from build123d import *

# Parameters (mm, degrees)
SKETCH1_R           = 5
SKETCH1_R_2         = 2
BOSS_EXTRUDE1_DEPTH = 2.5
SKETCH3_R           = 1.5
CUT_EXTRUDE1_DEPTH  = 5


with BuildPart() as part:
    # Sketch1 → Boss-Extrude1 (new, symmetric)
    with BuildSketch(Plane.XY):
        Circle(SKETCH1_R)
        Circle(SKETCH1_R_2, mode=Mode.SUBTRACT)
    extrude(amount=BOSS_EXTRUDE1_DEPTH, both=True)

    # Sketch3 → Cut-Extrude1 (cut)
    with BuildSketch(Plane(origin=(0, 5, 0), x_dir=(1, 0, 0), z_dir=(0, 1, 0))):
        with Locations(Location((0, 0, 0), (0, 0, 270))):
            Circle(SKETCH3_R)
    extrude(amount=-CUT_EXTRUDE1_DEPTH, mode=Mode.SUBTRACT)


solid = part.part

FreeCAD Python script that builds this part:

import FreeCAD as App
import Part
import Sketcher

doc = App.newDocument("Part")
body = doc.addObject("PartDesign::Body", "Body")

# Sketch on XY plane
sketch1 = body.newObject("Sketcher::SketchObject", "Sketch")
sketch1.AttachmentSupport = (doc.getObject("XY_Plane"), [""])
sketch1.MapMode = "FlatFace"
sketch1.addGeometry([
    Part.Circle(App.Vector(0, 0, 0), App.Vector(0, 0, 1), 5),
    Part.Circle(App.Vector(0, 0, 0), App.Vector(0, 0, 1), 2),
], False)
sketch1.addConstraint([
    Sketcher.Constraint("Coincident", 0, 3, -1, 1),
    Sketcher.Constraint("Coincident", 1, 3, -1, 1),
    Sketcher.Constraint("Diameter", 0, 10.0),
    Sketcher.Constraint("Diameter", 1, 4.0),
])
pad1 = body.newObject("PartDesign::Pad", "Pad")
pad1.Profile = sketch1
pad1.Length = 5
pad1.Midplane = True

# Sketch on XZ plane
sketch2 = body.newObject("Sketcher::SketchObject", "Sketch001")
sketch2.AttachmentSupport = (doc.getObject("XZ_Plane"), [""])
sketch2.MapMode = "FlatFace"
sketch2.AttachmentOffset = App.Placement(App.Vector(0, 0, -5), App.Rotation())
sketch2.addGeometry(Part.Circle(App.Vector(0, 0, 0), App.Vector(0, 0, 1), 1.5), False)
sketch2.addConstraint([
    Sketcher.Constraint("Coincident", 0, 3, -1, 1),
    Sketcher.Constraint("Diameter", 0, 3.0),
])
pocket1 = body.newObject("PartDesign::Pocket", "Pocket")
pocket1.Profile = sketch2
pocket1.Length = 5
pocket1.Reversed = True

doc.recompute()
